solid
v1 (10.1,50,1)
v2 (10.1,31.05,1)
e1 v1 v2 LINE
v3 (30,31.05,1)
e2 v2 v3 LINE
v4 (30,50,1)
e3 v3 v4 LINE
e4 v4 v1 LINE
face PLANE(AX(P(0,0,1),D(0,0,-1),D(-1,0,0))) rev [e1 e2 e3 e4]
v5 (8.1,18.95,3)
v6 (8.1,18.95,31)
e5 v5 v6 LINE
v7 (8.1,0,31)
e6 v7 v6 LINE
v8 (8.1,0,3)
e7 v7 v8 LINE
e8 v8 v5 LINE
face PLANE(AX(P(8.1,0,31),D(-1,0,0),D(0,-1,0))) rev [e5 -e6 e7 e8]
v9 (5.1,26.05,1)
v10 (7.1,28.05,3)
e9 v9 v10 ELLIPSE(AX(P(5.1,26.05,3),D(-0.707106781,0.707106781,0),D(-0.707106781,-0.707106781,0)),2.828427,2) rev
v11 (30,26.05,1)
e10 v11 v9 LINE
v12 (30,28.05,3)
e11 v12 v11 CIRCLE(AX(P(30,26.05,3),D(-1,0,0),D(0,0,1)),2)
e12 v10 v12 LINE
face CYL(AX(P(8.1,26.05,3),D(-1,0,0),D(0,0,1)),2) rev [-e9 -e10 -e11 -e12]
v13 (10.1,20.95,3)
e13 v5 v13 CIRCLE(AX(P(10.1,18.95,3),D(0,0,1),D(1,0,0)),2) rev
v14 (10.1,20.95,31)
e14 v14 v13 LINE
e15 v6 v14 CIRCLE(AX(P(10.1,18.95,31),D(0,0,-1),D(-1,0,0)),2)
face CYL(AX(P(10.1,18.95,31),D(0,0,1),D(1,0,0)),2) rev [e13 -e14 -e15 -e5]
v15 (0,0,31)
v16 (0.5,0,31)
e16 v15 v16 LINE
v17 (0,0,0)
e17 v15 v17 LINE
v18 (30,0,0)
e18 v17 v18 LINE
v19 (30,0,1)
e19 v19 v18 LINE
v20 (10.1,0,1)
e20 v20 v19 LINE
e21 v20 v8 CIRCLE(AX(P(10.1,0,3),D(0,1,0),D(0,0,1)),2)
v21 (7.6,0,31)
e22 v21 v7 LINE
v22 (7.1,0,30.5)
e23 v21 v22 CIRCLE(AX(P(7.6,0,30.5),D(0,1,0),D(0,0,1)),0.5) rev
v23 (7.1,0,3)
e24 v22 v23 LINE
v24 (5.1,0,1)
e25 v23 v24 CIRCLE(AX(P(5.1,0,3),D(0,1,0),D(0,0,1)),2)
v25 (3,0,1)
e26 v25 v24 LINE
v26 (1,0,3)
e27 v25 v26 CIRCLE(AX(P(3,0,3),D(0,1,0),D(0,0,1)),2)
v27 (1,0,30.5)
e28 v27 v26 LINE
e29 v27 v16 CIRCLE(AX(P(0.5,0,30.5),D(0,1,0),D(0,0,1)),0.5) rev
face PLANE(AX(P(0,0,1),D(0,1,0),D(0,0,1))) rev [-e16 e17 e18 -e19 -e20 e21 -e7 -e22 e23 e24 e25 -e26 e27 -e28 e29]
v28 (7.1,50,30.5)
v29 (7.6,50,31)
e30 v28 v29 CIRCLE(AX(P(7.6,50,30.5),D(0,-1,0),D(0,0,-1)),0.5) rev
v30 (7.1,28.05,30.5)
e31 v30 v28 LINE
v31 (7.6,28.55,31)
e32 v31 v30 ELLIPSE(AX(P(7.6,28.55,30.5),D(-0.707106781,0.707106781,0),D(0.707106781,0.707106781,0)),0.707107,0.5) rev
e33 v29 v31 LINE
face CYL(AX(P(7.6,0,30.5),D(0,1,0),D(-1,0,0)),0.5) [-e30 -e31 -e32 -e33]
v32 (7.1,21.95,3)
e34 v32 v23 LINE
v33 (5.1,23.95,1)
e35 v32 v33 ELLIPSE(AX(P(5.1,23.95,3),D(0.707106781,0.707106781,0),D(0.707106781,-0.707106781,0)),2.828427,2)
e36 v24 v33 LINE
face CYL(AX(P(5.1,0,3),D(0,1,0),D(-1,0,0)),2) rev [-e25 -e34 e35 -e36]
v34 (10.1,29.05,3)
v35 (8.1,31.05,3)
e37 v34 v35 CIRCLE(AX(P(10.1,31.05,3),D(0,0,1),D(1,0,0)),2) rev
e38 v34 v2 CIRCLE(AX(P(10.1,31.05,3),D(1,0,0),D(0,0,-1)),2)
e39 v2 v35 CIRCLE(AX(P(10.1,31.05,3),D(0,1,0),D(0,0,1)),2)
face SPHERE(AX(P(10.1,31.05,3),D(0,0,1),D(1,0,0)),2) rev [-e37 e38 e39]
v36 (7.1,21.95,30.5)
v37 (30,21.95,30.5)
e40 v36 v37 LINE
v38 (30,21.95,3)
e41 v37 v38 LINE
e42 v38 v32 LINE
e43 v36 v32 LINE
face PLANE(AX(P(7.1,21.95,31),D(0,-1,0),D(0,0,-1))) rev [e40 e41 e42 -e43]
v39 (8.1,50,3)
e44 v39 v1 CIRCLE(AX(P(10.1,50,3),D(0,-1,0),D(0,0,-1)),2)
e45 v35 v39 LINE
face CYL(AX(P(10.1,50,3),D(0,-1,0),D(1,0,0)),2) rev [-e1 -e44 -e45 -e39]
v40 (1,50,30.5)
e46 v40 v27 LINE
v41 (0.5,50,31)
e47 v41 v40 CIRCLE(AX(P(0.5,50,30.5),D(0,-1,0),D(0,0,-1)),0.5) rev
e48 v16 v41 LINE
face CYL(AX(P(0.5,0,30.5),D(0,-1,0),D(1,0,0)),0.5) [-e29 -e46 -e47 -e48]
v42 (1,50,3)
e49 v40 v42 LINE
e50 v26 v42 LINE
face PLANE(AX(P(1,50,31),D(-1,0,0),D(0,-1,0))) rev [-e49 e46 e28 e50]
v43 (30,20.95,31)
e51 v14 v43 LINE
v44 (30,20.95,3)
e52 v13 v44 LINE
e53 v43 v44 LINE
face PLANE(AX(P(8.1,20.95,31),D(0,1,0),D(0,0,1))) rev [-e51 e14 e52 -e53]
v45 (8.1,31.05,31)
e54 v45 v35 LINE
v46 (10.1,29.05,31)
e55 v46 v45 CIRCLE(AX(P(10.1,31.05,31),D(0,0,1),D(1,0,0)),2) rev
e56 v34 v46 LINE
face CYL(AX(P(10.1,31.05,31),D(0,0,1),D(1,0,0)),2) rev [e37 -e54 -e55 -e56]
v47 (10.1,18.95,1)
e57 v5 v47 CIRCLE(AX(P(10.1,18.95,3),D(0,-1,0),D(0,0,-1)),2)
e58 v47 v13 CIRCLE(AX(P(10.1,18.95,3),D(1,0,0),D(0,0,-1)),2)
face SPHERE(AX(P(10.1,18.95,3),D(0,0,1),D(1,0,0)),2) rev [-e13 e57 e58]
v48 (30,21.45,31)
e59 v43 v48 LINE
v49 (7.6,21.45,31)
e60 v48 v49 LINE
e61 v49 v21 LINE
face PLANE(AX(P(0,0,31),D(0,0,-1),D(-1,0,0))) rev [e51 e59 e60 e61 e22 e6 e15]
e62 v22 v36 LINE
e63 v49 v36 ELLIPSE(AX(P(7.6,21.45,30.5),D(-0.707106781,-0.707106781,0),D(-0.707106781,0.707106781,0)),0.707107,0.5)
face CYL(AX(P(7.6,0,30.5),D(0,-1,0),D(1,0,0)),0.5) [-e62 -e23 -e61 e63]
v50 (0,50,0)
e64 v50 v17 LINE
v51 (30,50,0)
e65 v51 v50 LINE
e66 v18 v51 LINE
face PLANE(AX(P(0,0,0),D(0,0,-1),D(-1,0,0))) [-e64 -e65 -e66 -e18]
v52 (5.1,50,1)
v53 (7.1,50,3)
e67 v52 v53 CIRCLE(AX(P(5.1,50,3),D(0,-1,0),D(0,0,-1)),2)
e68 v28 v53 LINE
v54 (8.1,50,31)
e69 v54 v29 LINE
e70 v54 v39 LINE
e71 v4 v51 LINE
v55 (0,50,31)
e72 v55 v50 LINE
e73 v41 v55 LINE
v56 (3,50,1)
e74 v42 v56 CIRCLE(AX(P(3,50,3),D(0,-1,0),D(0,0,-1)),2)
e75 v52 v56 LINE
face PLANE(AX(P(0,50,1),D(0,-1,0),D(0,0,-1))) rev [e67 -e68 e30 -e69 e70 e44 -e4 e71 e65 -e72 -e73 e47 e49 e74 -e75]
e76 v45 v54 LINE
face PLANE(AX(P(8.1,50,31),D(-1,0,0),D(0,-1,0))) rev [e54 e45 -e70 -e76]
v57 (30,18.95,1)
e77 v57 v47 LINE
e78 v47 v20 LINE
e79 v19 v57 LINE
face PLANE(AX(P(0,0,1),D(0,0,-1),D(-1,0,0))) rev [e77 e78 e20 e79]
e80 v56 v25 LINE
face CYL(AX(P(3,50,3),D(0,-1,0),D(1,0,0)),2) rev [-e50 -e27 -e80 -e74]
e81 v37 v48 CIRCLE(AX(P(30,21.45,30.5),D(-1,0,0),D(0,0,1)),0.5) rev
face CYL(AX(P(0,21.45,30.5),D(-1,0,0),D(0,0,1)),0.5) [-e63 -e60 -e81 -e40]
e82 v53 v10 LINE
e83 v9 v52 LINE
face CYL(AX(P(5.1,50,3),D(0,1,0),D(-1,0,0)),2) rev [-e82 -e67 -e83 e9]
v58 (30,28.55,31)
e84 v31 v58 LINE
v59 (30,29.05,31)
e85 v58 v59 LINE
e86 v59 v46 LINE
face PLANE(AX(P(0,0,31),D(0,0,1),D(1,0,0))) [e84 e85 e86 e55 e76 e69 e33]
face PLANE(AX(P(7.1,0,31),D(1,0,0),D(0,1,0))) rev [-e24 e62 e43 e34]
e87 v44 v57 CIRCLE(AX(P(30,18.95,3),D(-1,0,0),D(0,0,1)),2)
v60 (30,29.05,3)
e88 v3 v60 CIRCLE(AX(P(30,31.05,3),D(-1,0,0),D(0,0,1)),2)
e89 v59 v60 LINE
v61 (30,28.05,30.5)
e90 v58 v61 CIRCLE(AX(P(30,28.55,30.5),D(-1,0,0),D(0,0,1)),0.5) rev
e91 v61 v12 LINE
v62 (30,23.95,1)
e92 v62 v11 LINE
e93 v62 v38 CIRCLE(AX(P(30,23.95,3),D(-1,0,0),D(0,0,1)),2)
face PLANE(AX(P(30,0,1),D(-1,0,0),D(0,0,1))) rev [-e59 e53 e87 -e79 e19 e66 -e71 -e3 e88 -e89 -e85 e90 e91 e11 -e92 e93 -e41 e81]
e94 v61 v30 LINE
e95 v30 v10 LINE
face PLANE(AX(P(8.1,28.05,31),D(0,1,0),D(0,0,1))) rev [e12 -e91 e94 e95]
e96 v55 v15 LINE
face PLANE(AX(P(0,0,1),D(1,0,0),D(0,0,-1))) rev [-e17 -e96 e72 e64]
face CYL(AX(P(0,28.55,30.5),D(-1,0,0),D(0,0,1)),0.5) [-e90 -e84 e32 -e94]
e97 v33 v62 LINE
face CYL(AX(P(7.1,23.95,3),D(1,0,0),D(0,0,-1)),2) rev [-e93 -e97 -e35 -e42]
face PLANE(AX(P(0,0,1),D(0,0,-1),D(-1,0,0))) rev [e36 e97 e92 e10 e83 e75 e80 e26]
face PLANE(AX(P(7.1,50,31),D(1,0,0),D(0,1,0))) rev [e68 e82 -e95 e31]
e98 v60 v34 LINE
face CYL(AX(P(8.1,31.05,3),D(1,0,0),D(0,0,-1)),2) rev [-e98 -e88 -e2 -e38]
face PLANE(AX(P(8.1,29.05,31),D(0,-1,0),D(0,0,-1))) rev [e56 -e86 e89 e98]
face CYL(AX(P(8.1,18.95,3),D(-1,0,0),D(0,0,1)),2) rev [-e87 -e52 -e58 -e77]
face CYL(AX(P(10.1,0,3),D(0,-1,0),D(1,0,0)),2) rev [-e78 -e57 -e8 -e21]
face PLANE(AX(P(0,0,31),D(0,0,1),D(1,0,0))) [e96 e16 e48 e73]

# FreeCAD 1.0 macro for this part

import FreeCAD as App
import Part
import Sketcher
from FreeCAD import Vector
Q = App.Units.Quantity


def edges_at(feature, points):
    """Names of the edges that pass closest to the given points."""
    edges = feature.Shape.Edges
    near = lambda p: min(range(len(edges)), key=lambda i: edges[i].distToShape(Part.Vertex(*p))[0])
    return sorted({f"Edge{near(p) + 1}" for p in points})


def add_polygon(sketch, points):
    """Adds a closed chain of lines whose ends are joined by coincident constraints."""
    first, n = sketch.GeometryCount, len(points)
    for a, b in zip(points, points[1:] + points[:1]):
        sketch.addGeometry(Part.LineSegment(App.Vector(*a, 0), App.Vector(*b, 0)), False)
    for i in range(n):
        sketch.addConstraint(Sketcher.Constraint("Coincident", first + i, 2, first + (i + 1) % n, 1))

doc = App.newDocument("Part")
body = doc.addObject("PartDesign::Body", "Body")

sketch1 = body.newObject("Sketcher::SketchObject", "Sketch")
sketch1.AttachmentSupport = (doc.getObject("XY_Plane"), [""])
sketch1.MapMode = "FlatFace"
add_polygon(sketch1, [(0, 50), (0, 0), (30, 0), (30, 50)])
sketch1.addConstraint(Sketcher.Constraint("Vertical", 0))
sketch1.addConstraint(Sketcher.Constraint("Horizontal", 1))
sketch1.addConstraint(Sketcher.Constraint("Vertical", 2))
sketch1.addConstraint(Sketcher.Constraint("Horizontal", 3))
sketch1.addConstraint(Sketcher.Constraint("Coincident", 0, 2, -1, 1))
sketch1.addConstraint(Sketcher.Constraint("DistanceX", 1, 1, 1, 2, Q("30 mm")))
sketch1.addConstraint(Sketcher.Constraint("DistanceY", 0, 2, 0, 1, Q("50 mm")))
pad1 = body.newObject("PartDesign::Pad", "Pad")
pad1.Profile = sketch1
pad1.Length = 1

sketch2 = body.newObject("Sketcher::SketchObject", "Sketch001")
sketch2.AttachmentSupport = (doc.getObject("XY_Plane"), [""])
sketch2.MapMode = "FlatFace"
sketch2.AttachmentOffset = App.Placement(Vector(0, 0, 1), App.Rotation())
add_polygon(sketch2, [(7.1, 0), (8.1, 0), (8.1, 20.9), (30, 20.9), (30, 21.9), (7.1, 21.9)])
add_polygon(sketch2, [(0, 50), (0, 0), (1, 0), (1, 50)])
add_polygon(sketch2, [(8.1, 50), (7.1, 50), (7.1, 28.1), (30, 28.1), (30, 29.1), (8.1, 29.1)])
sketch2.addConstraint(Sketcher.Constraint("Horizontal", 0))
sketch2.addConstraint(Sketcher.Constraint("Vertical", 1))
sketch2.addConstraint(Sketcher.Constraint("Horizontal", 2))
sketch2.addConstraint(Sketcher.Constraint("Vertical", 3))
sketch2.addConstraint(Sketcher.Constraint("Horizontal", 4))
sketch2.addConstraint(Sketcher.Constraint("Vertical", 5))
sketch2.addConstraint(Sketcher.Constraint("Vertical", 6))
sketch2.addConstraint(Sketcher.Constraint("Horizontal", 7))
sketch2.addConstraint(Sketcher.Constraint("Vertical", 8))
sketch2.addConstraint(Sketcher.Constraint("Horizontal", 9))
sketch2.addConstraint(Sketcher.Constraint("Horizontal", 10))
sketch2.addConstraint(Sketcher.Constraint("Vertical", 11))
sketch2.addConstraint(Sketcher.Constraint("Horizontal", 12))
sketch2.addConstraint(Sketcher.Constraint("Vertical", 13))
sketch2.addConstraint(Sketcher.Constraint("Horizontal", 14))
sketch2.addConstraint(Sketcher.Constraint("Vertical", 15))
sketch2.addConstraint(Sketcher.Constraint("Coincident", 6, 2, -1, 1))
sketch2.addConstraint(Sketcher.Constraint("PointOnObject", 0, 2, -1))
sketch2.addConstraint(Sketcher.Constraint("Horizontal", 9, 2, 10, 2))
sketch2.addConstraint(Sketcher.Constraint("Vertical", 5, 2, 10, 2))
sketch2.addConstraint(Sketcher.Constraint("Vertical", 3, 2, 12, 2))
sketch2.addConstraint(Sketcher.Constraint("Vertical", 1, 2, 14, 2))
sketch2.addConstraint(Sketcher.Constraint("Equal", 0, 7))
sketch2.addConstraint(Sketcher.Constraint("Equal", 10, 3))
sketch2.addConstraint(Sketcher.Constraint("Equal", 5, 11))
sketch2.addConstraint(Sketcher.Constraint("Equal", 3, 13))
sketch2.addConstraint(Sketcher.Constraint("DistanceX", 0, 1, 0, 2, Q("1 mm")))
sketch2.addConstraint(Sketcher.Constraint("DistanceY", 6, 2, 6, 1, Q("50 mm")))
sketch2.addConstraint(Sketcher.Constraint("DistanceX", 2, 1, 2, 2, Q("21.9 mm")))
sketch2.addConstraint(Sketcher.Constraint("DistanceX", -1, 1, 2, 2, Q("30 mm")))
sketch2.addConstraint(Sketcher.Constraint("DistanceY", 1, 1, 1, 2, Q("20.95 mm")))
pad2 = body.newObject("PartDesign::Pad", "Pad001")
pad2.Profile = sketch2
pad2.Length = 30
doc.recompute()

fillet = body.newObject("PartDesign::Fillet", "Fillet")
fillet.Base = (pad2, edges_at(pad2, [
    (1, 25, 1),
    (7.1, 10.975, 1),
    (8.1, 10.475, 1),
    (19.05, 20.95, 1),
    (8.1, 20.95, 16),
    (18.55, 21.95, 1),
    (7.1, 39.025, 1),
    (18.55, 28.05, 1),
    (19.05, 29.05, 1),
    (8.1, 39.525, 1),
    (8.1, 29.05, 16),
]))
fillet.Radius = 2
doc.recompute()

fillet2 = body.newObject("PartDesign::Fillet", "Fillet001")
fillet2.Base = (fillet, edges_at(fillet, [
    (1, 25, 31),
    (7.1, 10.975, 31),
    (18.55, 21.95, 31),
    (7.1, 39.025, 31),
    (18.55, 28.05, 31),
]))
fillet2.Radius = 0.5

doc.recompute()
